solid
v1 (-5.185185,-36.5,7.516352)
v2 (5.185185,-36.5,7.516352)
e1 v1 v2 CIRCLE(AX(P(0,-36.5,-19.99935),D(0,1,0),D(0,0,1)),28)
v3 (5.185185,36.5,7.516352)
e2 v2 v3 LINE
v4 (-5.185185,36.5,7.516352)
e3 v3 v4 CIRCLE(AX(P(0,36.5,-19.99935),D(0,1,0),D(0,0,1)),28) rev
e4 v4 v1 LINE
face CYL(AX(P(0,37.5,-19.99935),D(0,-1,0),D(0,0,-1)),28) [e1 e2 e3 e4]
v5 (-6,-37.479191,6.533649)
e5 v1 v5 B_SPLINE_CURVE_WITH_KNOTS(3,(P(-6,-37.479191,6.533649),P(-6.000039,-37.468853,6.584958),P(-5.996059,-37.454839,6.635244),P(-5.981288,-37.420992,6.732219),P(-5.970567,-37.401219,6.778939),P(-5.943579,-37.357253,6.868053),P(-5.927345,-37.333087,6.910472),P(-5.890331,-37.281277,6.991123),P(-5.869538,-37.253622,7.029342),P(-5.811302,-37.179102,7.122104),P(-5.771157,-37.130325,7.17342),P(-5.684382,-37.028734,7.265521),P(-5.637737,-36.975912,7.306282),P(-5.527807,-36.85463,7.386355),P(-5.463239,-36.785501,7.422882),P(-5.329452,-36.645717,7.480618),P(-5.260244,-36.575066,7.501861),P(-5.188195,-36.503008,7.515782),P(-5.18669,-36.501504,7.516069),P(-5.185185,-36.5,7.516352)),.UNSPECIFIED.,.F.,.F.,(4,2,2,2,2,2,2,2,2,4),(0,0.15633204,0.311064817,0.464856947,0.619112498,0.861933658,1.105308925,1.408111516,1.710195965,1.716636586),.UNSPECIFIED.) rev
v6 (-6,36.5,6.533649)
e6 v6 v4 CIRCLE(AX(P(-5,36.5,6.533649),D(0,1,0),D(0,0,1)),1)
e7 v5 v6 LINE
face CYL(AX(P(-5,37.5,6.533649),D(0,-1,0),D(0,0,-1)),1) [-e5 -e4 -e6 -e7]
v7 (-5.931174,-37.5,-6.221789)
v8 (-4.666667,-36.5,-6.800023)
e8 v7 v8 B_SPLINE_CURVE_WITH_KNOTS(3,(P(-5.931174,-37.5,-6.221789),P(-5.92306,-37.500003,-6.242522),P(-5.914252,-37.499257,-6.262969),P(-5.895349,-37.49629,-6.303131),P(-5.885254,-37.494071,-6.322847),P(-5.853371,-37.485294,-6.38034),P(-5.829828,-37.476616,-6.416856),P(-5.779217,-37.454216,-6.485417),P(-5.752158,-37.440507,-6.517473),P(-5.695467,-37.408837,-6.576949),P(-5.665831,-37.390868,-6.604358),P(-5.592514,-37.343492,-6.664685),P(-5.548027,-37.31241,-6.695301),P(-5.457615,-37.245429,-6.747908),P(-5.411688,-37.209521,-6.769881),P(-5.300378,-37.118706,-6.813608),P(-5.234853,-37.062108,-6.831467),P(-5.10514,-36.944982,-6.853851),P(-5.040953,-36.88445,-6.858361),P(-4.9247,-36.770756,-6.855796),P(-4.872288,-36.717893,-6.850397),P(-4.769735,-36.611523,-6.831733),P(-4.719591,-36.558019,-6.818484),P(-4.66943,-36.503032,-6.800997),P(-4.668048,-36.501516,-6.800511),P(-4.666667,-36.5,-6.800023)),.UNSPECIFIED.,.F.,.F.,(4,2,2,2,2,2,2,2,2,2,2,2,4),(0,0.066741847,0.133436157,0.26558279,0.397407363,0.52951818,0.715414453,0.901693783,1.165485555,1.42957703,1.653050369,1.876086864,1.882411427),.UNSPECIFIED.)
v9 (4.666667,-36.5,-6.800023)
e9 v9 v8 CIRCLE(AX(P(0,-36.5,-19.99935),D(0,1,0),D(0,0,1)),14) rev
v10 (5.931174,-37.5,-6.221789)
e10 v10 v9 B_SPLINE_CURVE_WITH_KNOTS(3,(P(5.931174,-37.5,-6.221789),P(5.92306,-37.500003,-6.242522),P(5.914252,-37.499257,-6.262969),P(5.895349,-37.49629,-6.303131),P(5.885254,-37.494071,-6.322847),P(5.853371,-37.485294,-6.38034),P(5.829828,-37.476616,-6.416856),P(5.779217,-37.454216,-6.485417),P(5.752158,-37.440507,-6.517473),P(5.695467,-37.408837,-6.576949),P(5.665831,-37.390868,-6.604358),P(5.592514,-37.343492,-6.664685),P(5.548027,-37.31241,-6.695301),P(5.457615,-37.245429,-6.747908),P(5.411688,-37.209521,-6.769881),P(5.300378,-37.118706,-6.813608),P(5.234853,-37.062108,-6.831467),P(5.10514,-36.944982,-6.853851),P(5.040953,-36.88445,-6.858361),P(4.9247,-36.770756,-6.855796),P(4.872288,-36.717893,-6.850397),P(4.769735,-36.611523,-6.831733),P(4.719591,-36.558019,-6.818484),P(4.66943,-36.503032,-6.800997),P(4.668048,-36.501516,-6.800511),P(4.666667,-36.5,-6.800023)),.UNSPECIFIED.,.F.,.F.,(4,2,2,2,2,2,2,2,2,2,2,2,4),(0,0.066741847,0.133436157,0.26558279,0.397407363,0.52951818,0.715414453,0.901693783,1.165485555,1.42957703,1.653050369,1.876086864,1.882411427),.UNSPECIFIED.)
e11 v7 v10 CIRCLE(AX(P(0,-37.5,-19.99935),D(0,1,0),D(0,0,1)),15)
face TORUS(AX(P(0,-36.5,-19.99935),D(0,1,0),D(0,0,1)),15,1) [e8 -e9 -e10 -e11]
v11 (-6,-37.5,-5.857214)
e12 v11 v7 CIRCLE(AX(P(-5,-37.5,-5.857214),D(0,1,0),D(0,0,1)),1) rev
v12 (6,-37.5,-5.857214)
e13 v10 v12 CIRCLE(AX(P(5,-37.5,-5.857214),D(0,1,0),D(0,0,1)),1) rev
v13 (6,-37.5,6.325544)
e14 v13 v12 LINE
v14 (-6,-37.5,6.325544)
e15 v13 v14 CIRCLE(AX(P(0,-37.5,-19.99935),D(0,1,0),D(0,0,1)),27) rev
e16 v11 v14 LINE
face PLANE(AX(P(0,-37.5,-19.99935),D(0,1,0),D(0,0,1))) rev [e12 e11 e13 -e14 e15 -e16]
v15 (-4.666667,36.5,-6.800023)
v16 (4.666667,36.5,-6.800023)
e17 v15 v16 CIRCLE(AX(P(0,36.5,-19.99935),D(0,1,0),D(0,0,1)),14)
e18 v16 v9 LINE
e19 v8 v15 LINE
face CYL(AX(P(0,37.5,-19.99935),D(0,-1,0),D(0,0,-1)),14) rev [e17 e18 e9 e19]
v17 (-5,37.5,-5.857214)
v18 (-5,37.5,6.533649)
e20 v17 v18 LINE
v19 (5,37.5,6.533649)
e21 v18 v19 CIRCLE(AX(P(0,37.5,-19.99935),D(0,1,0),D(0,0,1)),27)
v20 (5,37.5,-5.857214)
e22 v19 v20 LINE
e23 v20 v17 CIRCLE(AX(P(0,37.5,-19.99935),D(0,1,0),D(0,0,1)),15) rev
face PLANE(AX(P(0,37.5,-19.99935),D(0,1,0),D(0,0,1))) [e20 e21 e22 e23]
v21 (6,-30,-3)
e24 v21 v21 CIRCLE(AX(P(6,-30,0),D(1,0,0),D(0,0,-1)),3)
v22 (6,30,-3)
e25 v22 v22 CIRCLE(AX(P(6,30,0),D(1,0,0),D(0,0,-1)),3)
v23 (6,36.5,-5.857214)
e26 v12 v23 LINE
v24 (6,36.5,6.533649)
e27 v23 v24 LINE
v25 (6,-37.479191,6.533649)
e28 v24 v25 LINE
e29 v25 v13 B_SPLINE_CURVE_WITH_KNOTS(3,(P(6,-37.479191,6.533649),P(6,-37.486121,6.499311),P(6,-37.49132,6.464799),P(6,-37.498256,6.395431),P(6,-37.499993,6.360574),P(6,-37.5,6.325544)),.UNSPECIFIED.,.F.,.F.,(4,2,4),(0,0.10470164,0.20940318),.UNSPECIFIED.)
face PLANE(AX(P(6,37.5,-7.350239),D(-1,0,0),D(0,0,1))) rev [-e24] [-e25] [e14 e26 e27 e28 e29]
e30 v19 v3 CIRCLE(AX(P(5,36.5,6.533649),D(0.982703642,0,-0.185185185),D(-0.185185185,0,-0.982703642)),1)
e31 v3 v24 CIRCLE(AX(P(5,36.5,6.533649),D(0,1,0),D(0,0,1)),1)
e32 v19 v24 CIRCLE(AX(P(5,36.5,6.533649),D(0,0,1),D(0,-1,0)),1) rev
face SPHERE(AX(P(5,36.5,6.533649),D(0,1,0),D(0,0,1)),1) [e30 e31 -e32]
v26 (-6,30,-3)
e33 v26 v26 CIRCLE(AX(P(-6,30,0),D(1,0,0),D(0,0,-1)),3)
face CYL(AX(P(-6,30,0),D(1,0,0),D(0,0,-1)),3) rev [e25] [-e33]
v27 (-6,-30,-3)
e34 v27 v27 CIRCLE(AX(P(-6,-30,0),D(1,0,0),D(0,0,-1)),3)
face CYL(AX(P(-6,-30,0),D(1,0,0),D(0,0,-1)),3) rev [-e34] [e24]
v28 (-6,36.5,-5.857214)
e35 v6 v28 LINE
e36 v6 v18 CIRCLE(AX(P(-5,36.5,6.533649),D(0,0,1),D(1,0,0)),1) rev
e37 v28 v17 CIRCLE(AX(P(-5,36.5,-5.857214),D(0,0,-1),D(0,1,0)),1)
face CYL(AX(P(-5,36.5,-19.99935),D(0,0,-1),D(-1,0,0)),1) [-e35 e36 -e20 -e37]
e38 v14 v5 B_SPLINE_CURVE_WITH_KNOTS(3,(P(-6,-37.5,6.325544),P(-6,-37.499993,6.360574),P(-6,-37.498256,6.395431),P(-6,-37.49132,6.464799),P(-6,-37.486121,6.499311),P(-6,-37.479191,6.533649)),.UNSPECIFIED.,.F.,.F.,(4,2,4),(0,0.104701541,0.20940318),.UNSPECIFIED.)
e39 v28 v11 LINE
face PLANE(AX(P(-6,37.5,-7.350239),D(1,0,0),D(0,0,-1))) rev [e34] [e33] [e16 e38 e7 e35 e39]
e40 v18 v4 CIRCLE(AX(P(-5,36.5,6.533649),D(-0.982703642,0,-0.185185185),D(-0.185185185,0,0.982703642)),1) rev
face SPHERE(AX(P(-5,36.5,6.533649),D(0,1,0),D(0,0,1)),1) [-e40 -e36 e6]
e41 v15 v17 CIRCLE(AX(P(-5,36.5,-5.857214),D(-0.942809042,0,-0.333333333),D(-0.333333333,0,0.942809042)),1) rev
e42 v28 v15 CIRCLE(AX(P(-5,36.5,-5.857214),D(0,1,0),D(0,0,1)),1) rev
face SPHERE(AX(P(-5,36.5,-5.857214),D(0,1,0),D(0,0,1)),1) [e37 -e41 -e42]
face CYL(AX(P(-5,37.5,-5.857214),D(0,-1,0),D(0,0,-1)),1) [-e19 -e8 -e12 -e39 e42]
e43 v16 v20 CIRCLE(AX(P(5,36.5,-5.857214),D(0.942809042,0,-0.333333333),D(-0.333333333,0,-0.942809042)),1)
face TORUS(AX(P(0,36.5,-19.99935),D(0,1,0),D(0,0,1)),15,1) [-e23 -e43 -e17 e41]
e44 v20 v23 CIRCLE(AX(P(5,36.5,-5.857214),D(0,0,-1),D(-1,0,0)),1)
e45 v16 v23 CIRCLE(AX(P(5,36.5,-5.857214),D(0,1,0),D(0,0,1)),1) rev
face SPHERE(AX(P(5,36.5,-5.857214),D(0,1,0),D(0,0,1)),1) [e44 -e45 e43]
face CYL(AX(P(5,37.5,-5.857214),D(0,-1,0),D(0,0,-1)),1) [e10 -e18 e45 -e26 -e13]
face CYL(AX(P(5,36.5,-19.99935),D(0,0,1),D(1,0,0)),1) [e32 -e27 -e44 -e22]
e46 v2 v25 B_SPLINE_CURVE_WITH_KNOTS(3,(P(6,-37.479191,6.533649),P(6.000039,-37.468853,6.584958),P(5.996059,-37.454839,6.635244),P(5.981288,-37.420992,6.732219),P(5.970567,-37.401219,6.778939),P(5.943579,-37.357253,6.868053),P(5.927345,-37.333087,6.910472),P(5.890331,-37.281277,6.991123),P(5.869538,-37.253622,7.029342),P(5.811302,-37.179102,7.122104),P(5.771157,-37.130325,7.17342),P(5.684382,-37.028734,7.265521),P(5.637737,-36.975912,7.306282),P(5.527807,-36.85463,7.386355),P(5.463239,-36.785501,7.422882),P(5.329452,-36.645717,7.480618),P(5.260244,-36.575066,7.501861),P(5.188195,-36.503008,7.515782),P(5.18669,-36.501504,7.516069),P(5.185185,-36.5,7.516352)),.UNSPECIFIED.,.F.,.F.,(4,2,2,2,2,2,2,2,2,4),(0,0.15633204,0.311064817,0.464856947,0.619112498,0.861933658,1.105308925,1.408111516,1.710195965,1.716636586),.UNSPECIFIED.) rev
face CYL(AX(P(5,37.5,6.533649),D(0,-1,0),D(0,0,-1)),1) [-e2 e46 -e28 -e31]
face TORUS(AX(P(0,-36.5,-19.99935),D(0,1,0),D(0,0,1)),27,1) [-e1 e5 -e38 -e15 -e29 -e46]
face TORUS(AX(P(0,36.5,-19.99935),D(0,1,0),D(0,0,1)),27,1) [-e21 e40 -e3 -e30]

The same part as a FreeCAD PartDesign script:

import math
import FreeCAD as App
import Part
import Sketcher
Q = App.Units.Quantity


def edges_at(feature, points):
    """Names of the edges that pass closest to the given points."""
    edges = feature.Shape.Edges
    near = lambda p: min(range(len(edges)), key=lambda i: edges[i].distToShape(Part.Vertex(*p))[0])
    return sorted({f"Edge{near(p) + 1}" for p in points})

doc = App.newDocument("Part")
params = doc.addObject("Spreadsheet::Sheet", "Params")
for row, (alias, value) in enumerate([
    ("sketch1_radius", "28 mm"),
    ("sketch1_radius2", "14 mm"),
    ("pad1_length", "75 mm"),
    ("sketch2_diameter", "6 mm"),
    ("fillet_radius", "1 mm"),
], start=1):
    params.set(f"A{row}", alias)
    params.set(f"B{row}", "=" + value)
    params.setAlias(f"B{row}", alias)

body = doc.addObject("PartDesign::Body", "Body")

# Sketch on XZ plane
sketch1 = body.newObject("Sketcher::SketchObject", "Sketch")
sketch1.AttachmentSupport = (doc.getObject("XZ_Plane"), [""])
sketch1.MapMode = "FlatFace"
sketch1.addGeometry(Part.LineSegment(App.Vector(-6, -7, 0), App.Vector(-6, 7, 0)), False)
sketch1.addGeometry(Part.ArcOfCircle(Part.Circle(App.Vector(0, -20, 0), App.Vector(0, 0, 1), 28), math.radians(78), math.radians(102)), False)
sketch1.addGeometry(Part.LineSegment(App.Vector(6, 7, 0), App.Vector(6, -7, 0)), False)
sketch1.addGeometry(Part.ArcOfCircle(Part.Circle(App.Vector(0, -20, 0), App.Vector(0, 0, 1), 14), math.radians(65), math.radians(115)), False)
sketch1.addConstraint(Sketcher.Constraint("Coincident", 0, 2, 1, 2))
sketch1.addConstraint(Sketcher.Constraint("Coincident", 1, 1, 2, 1))
sketch1.addConstraint(Sketcher.Constraint("Coincident", 2, 2, 3, 1))
sketch1.addConstraint(Sketcher.Constraint("Coincident", 3, 2, 0, 1))
sketch1.addConstraint(Sketcher.Constraint("Vertical", 0))
sketch1.addConstraint(Sketcher.Constraint("Vertical", 2))
sketch1.addConstraint(Sketcher.Constraint("Coincident", 3, 3, 1, 3))
sketch1.addConstraint(Sketcher.Constraint("Symmetric", 0, 2, 2, 2, -1, 1))
sketch1.addConstraint(Sketcher.Constraint("PointOnObject", 1, 3, -2))
sketch1.addConstraint(Sketcher.Constraint("Radius", 1, Q("28 mm")))
sketch1.addConstraint(Sketcher.Constraint("Radius", 3, Q("14 mm")))
sketch1.addConstraint(Sketcher.Constraint("DistanceX", 0, 2, -1, 1, Q("6 mm")))
sketch1.setExpression("Constraints[9]", "Params.sketch1_radius")
sketch1.setExpression("Constraints[10]", "Params.sketch1_radius2")
pad1 = body.newObject("PartDesign::Pad", "Pad")
pad1.Profile = sketch1
pad1.setExpression("Length", "Params.pad1_length")
pad1.Midplane = True

# Sketch on YZ plane
sketch2 = body.newObject("Sketcher::SketchObject", "Sketch001")
sketch2.AttachmentSupport = (doc.getObject("YZ_Plane"), [""])
sketch2.MapMode = "FlatFace"
sketch2.addGeometry(Part.Circle(App.Vector(30, 0, 0), App.Vector(0, 0, 1), 3), False)
sketch2.addGeometry(Part.Circle(App.Vector(-30, 0, 0), App.Vector(0, 0, 1), 3), False)
sketch2.addConstraint(Sketcher.Constraint("Equal", 0, 1))
sketch2.addConstraint(Sketcher.Constraint("Symmetric", 0, 3, 1, 3, -1, 1))
sketch2.addConstraint(Sketcher.Constraint("PointOnObject", 0, 3, -1))
sketch2.addConstraint(Sketcher.Constraint("Diameter", 0, Q("6 mm")))
sketch2.addConstraint(Sketcher.Constraint("DistanceX", -1, 1, 0, 3, Q("30 mm")))
sketch2.setExpression("Constraints[3]", "Params.sketch2_diameter")
pocket1 = body.newObject("PartDesign::Pocket", "Pocket")
pocket1.Profile = sketch2
pocket1.Type = "ThroughAll"
pocket1.Midplane = True
doc.recompute()

fillet = body.newObject("PartDesign::Fillet", "Fillet")
fillet.Base = (pocket1, edges_at(pocket1, [
    (0, 37.5, 8.001),
    (6, 37.5, 0),
    (0, 37.5, -5.999),
    (0, -37.5, 8.001),
    (0, -37.5, -5.999),
    (6, 0, -7.35),
    (6, 0, 7.35),
    (-6, 0, 7.35),
    (-6, 0, -7.35),
    (-6, 37.5, 0),
]))
fillet.setExpression("Radius", "Params.fillet_radius")

doc.recompute()
